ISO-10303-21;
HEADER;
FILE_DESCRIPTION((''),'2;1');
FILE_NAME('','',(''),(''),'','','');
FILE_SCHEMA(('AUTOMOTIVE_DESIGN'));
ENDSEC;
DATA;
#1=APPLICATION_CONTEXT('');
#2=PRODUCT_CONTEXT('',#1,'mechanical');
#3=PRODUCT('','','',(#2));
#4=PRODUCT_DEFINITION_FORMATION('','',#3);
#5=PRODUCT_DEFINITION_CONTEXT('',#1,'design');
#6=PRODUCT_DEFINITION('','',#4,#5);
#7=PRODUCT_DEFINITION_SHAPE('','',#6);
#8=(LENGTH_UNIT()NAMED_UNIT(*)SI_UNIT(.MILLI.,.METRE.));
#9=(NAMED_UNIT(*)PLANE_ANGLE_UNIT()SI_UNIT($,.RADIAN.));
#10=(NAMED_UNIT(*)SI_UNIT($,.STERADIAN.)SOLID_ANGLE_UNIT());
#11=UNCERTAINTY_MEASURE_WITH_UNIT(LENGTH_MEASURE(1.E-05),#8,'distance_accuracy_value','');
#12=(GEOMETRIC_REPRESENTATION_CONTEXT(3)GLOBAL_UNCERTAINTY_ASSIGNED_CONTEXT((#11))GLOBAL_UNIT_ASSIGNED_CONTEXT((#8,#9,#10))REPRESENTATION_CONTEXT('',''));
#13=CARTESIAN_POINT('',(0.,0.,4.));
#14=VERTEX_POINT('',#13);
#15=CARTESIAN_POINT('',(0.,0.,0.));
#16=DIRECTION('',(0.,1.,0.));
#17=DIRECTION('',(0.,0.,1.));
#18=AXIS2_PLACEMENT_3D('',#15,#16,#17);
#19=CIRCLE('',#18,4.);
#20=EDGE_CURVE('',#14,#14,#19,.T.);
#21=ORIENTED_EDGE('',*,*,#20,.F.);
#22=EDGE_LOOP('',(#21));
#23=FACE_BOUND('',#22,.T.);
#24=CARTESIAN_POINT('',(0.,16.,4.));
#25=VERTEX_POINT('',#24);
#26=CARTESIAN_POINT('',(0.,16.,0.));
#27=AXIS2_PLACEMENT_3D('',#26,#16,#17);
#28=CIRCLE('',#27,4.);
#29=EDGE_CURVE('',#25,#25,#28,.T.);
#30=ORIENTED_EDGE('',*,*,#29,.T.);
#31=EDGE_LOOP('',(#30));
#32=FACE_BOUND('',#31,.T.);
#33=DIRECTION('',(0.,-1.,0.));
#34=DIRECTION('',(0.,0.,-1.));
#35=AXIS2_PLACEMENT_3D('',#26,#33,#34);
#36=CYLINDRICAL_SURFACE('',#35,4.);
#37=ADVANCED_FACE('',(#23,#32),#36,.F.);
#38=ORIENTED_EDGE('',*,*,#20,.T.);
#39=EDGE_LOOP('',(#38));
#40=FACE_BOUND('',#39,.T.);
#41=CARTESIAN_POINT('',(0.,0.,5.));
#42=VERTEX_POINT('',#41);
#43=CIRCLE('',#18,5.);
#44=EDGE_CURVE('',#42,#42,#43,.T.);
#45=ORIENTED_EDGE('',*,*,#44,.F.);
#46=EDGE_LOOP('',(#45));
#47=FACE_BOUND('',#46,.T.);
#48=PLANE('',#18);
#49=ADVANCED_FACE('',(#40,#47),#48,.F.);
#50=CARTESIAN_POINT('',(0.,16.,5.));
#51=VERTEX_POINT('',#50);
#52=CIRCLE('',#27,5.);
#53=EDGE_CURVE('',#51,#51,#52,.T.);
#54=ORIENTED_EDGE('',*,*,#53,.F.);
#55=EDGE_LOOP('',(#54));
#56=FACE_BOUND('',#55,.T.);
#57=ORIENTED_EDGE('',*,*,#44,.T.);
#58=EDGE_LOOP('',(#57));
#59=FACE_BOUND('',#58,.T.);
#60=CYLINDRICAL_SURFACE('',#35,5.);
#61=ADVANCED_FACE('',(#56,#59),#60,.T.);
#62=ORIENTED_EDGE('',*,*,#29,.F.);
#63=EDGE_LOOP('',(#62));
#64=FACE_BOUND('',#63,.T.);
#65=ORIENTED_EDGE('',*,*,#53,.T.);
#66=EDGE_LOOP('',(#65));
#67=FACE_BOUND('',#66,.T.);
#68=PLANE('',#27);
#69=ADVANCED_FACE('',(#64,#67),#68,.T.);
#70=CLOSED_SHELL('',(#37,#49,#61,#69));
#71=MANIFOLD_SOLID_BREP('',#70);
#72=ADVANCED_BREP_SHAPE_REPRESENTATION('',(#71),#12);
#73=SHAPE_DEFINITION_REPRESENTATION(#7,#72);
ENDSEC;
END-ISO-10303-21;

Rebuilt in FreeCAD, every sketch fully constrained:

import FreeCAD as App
import Part
import Sketcher
from FreeCAD import Vector

doc = App.newDocument("Part")
body = doc.addObject("PartDesign::Body", "Body")

sketch1 = doc.addObject("Sketcher::SketchObject", "Sketch")
body.addObject(sketch1)
sketch1.AttachmentSupport = (doc.XZ_Plane, [""])
sketch1.MapMode = "FlatFace"
sketch1.addGeometry([
    Part.Circle(Vector(0, 0, 0), Vector(0, 0, 1), 5),
    Part.Circle(Vector(0, 0, 0), Vector(0, 0, 1), 4),
], False)
sketch1.addConstraint([
    Sketcher.Constraint("Coincident", 0, 3, -1, 1),
    Sketcher.Constraint("Coincident", 1, 3, -1, 1),
    Sketcher.Constraint("Diameter", 0, 10.0),
    Sketcher.Constraint("Diameter", 1, 8.0),
])
pad1 = doc.addObject("PartDesign::Pad", "Pad")
body.addObject(pad1)
pad1.Profile = sketch1
pad1.Length = 16
pad1.Reversed = True

doc.recompute()
